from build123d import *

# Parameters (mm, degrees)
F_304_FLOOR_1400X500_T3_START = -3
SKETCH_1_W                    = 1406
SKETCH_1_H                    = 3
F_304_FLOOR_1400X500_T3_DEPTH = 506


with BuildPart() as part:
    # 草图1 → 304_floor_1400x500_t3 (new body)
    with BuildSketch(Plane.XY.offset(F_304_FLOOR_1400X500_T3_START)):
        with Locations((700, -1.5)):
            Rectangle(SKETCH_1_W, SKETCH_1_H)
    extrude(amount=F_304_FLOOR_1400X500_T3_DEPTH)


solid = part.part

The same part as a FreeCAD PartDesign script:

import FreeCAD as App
import Part
import Sketcher

V = App.Vector
Q = App.Units.Quantity


def add_polygon(sketch, points):
    """Adds a closed chain of lines whose ends are joined by coincident constraints."""
    first, n = sketch.GeometryCount, len(points)
    for a, b in zip(points, points[1:] + points[:1]):
        sketch.addGeometry(Part.LineSegment(App.Vector(*a, 0), App.Vector(*b, 0)), False)
    for i in range(n):
        sketch.addConstraint(Sketcher.Constraint("Coincident", first + i, 2, first + (i + 1) % n, 1))

doc = App.newDocument("Part")
body = doc.addObject("PartDesign::Body", "Body")

sketch1 = body.newObject("Sketcher::SketchObject", "Sketch")
sketch1.AttachmentSupport = (doc.getObject("XY_Plane"), [""])
sketch1.MapMode = "FlatFace"
sketch1.AttachmentOffset = App.Placement(V(0, 0, -3), App.Rotation())
add_polygon(sketch1, [(-3, 0), (-3, -3), (1403, -3), (1403, 0)])
sketch1.addConstraint(Sketcher.Constraint("Vertical", 0))
sketch1.addConstraint(Sketcher.Constraint("Horizontal", 1))
sketch1.addConstraint(Sketcher.Constraint("Vertical", 2))
sketch1.addConstraint(Sketcher.Constraint("Horizontal", 3))
sketch1.addConstraint(Sketcher.Constraint("PointOnObject", 2, 2, -1))
sketch1.addConstraint(Sketcher.Constraint("DistanceX", 1, 1, 1, 2, Q("1406 mm")))
sketch1.addConstraint(Sketcher.Constraint("DistanceY", 0, 2, 0, 1, Q("3 mm")))
sketch1.addConstraint(Sketcher.Constraint("DistanceX", 0, 2, -1, 1, Q("3 mm")))
pad1 = body.newObject("PartDesign::Pad", "Pad")
pad1.Profile = sketch1
pad1.Length = 506

doc.recompute()
